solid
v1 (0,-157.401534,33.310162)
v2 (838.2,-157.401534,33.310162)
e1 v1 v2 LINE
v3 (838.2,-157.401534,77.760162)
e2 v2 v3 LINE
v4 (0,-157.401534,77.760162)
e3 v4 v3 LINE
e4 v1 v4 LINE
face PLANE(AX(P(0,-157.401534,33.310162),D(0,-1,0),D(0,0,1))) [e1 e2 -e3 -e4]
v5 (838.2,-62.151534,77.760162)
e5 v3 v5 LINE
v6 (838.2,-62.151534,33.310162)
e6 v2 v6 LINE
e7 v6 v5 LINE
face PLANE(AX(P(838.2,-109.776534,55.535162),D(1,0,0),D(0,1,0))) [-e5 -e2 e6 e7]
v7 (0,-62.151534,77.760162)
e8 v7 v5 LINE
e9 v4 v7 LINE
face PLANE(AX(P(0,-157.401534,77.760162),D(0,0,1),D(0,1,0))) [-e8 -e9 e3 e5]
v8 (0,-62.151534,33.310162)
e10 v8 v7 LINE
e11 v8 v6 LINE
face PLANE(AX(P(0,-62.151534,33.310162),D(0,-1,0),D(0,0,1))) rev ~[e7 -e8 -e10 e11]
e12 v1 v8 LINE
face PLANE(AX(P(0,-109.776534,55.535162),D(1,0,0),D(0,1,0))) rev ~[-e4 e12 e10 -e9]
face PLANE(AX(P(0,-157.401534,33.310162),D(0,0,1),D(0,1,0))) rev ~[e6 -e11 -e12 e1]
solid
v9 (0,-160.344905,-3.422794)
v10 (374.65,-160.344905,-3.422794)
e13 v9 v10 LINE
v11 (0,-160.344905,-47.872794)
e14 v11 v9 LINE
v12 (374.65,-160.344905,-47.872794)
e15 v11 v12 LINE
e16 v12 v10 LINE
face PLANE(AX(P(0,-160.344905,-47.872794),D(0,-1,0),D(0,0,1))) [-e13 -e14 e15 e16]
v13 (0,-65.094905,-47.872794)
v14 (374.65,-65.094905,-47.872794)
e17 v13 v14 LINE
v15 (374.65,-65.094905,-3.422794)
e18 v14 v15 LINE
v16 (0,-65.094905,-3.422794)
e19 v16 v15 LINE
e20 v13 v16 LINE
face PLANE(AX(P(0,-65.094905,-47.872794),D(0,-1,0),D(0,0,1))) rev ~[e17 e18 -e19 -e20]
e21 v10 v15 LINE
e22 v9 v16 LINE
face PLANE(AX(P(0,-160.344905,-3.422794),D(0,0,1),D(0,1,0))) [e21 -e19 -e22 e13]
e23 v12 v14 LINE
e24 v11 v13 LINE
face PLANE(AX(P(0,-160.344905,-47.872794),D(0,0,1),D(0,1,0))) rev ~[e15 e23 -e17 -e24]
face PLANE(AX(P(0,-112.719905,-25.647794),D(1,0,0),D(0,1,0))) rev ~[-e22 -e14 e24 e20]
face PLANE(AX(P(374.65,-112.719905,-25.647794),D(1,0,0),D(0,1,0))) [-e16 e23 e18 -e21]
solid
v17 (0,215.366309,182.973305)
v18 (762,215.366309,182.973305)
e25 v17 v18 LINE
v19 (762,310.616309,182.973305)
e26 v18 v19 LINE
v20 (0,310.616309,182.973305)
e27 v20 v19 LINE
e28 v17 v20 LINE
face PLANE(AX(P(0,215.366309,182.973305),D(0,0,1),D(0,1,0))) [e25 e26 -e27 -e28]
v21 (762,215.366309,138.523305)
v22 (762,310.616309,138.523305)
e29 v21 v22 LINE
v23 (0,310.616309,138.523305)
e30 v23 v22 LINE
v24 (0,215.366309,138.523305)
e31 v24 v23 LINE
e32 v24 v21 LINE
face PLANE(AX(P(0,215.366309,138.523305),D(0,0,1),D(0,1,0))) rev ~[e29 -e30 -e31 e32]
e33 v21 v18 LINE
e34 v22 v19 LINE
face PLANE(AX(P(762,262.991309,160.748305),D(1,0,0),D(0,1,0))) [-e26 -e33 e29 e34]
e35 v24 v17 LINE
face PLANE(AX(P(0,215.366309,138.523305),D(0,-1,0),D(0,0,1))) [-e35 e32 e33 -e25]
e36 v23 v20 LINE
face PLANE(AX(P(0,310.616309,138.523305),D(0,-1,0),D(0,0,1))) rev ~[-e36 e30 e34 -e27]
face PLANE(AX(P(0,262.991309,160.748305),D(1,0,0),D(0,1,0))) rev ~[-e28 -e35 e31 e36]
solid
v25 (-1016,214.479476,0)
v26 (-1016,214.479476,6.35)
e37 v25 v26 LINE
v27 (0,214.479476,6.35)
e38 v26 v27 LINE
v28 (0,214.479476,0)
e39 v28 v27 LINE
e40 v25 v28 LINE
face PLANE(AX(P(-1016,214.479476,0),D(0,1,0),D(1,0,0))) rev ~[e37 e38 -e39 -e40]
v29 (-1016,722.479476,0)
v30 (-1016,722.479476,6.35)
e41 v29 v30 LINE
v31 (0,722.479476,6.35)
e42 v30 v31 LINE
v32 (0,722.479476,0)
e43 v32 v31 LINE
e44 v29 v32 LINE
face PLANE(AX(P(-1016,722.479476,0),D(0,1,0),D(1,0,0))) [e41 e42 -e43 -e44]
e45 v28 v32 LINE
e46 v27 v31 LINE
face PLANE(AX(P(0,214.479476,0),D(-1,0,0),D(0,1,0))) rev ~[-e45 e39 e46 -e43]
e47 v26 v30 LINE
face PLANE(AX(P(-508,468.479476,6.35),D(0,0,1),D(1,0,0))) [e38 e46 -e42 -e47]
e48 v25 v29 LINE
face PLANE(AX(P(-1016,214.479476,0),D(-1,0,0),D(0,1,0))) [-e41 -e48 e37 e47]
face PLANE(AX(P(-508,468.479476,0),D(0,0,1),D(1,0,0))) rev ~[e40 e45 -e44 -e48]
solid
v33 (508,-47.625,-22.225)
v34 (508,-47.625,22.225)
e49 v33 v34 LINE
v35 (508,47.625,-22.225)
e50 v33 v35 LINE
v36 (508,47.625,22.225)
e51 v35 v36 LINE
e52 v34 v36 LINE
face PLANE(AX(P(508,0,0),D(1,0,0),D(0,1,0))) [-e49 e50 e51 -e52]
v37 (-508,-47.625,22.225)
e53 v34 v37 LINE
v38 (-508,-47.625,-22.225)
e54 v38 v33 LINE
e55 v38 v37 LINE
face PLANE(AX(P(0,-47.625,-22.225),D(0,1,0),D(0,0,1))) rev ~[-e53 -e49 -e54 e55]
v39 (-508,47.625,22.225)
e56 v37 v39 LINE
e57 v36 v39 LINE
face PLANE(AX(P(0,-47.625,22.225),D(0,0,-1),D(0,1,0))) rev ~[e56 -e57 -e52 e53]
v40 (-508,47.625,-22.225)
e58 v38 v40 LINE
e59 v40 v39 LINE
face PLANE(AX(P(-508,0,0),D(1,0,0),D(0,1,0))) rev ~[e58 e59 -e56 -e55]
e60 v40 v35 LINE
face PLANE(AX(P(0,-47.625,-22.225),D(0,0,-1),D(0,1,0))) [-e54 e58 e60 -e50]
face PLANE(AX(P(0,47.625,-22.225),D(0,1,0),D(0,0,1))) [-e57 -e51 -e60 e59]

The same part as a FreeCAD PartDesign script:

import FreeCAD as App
import Part
import Sketcher
from FreeCAD import Vector
Q = App.Units.Quantity


def add_polygon(sketch, points):
    """Adds a closed chain of lines whose ends are joined by coincident constraints."""
    first, n = sketch.GeometryCount, len(points)
    for a, b in zip(points, points[1:] + points[:1]):
        sketch.addGeometry(Part.LineSegment(App.Vector(*a, 0), App.Vector(*b, 0)), False)
    for i in range(n):
        sketch.addConstraint(Sketcher.Constraint("Coincident", first + i, 2, first + (i + 1) % n, 1))

doc = App.newDocument("Part")
body = doc.addObject("PartDesign::Body", "Body")

# Sketch on YZ plane
sketch1 = body.newObject("Sketcher::SketchObject", "Sketch")
sketch1.AttachmentSupport = (doc.getObject("YZ_Plane"), [""])
sketch1.MapMode = "FlatFace"
add_polygon(sketch1, [(-48, 22), (-48, -22), (48, -22), (48, 22)])  # lines 0-3
sketch1.addConstraint([
    Sketcher.Constraint("Vertical", 0),
    Sketcher.Constraint("Horizontal", 1),
    Sketcher.Constraint("Vertical", 2),
    Sketcher.Constraint("Horizontal", 3),
    Sketcher.Constraint("Symmetric", 0, 2, 2, 2, -1, 1),
    Sketcher.Constraint("DistanceX", 1, 1, 1, 2, Q("3.75 in")),
    Sketcher.Constraint("DistanceY", 0, 2, 0, 1, Q("1.75 in")),
])
pad1 = body.newObject("PartDesign::Pad", "Pad")
pad1.Profile = sketch1
pad1.Length = Q("40 in")
pad1.Midplane = True
body2 = doc.addObject("PartDesign::Body", "Body001")

# Sketch on YZ plane
sketch2 = body2.newObject("Sketcher::SketchObject", "Sketch001")
sketch2.AttachmentSupport = (doc.getObject("YZ_Plane001"), [""])
sketch2.MapMode = "FlatFace"
add_polygon(sketch2, [(215, 183), (215, 139), (311, 139), (311, 183)])  # lines 0-3
sketch2.addConstraint([
    Sketcher.Constraint("Vertical", 0),
    Sketcher.Constraint("Horizontal", 1),
    Sketcher.Constraint("Vertical", 2),
    Sketcher.Constraint("Horizontal", 3),
    Sketcher.Constraint("DistanceX", 1, 1, 1, 2, Q("3.75 in")),
    Sketcher.Constraint("DistanceY", 0, 2, 0, 1, Q("1.75 in")),
    Sketcher.Constraint("DistanceX", -1, 1, 0, 2, 215.366309),
    Sketcher.Constraint("DistanceY", -1, 1, 0, 2, 138.523305),
])
pad2 = body2.newObject("PartDesign::Pad", "Pad001")
pad2.Profile = sketch2
pad2.Length = Q("30 in")
body3 = doc.addObject("PartDesign::Body", "Body002")

# Sketch on YZ plane
sketch3 = body3.newObject("Sketcher::SketchObject", "Sketch002")
sketch3.AttachmentSupport = (doc.getObject("YZ_Plane002"), [""])
sketch3.MapMode = "FlatFace"
add_polygon(sketch3, [(-157, 78), (-157, 33), (-62, 33), (-62, 78)])  # lines 0-3
sketch3.addConstraint([
    Sketcher.Constraint("Vertical", 0),
    Sketcher.Constraint("Horizontal", 1),
    Sketcher.Constraint("Vertical", 2),
    Sketcher.Constraint("Horizontal", 3),
    Sketcher.Constraint("DistanceX", 1, 1, 1, 2, Q("3.75 in")),
    Sketcher.Constraint("DistanceY", 0, 2, 0, 1, Q("1.75 in")),
    Sketcher.Constraint("DistanceY", -1, 1, 0, 2, 33.310162),
    Sketcher.Constraint("DistanceX", 0, 2, -1, 1, 157.401534),
])
pad3 = body3.newObject("PartDesign::Pad", "Pad002")
pad3.Profile = sketch3
pad3.Length = Q("33 in")
body4 = doc.addObject("PartDesign::Body", "Body003")

# Sketch on YZ plane
sketch4 = body4.newObject("Sketcher::SketchObject", "Sketch003")
sketch4.AttachmentSupport = (doc.getObject("YZ_Plane003"), [""])
sketch4.MapMode = "FlatFace"
add_polygon(sketch4, [(-160, -3), (-160, -48), (-65, -48), (-65, -3)])  # lines 0-3
sketch4.addConstraint([
    Sketcher.Constraint("Vertical", 0),
    Sketcher.Constraint("Horizontal", 1),
    Sketcher.Constraint("Vertical", 2),
    Sketcher.Constraint("Horizontal", 3),
    Sketcher.Constraint("DistanceX", 1, 1, 1, 2, Q("3.75 in")),
    Sketcher.Constraint("DistanceY", 0, 2, 0, 1, Q("1.75 in")),
    Sketcher.Constraint("DistanceX", 0, 2, -1, 1, 160.344905),
    Sketcher.Constraint("DistanceY", 0, 2, -1, 1, 47.872794),
])
pad4 = body4.newObject("PartDesign::Pad", "Pad003")
pad4.Profile = sketch4
pad4.Length = Q("14.75 in")
body5 = doc.addObject("PartDesign::Body", "Body004")

# Sketch on XY plane
sketch5 = body5.newObject("Sketcher::SketchObject", "Sketch004")
sketch5.AttachmentSupport = (doc.getObject("XY_Plane004"), [""])
sketch5.MapMode = "FlatFace"
add_polygon(sketch5, [(-1016, 722), (-1016, 214), (0, 214), (0, 722)])  # lines 0-3
sketch5.addConstraint([
    Sketcher.Constraint("Vertical", 0),
    Sketcher.Constraint("Horizontal", 1),
    Sketcher.Constraint("Vertical", 2),
    Sketcher.Constraint("Horizontal", 3),
    Sketcher.Constraint("PointOnObject", 1, 2, -2),
    Sketcher.Constraint("DistanceX", 1, 1, 1, 2, Q("40 in")),
    Sketcher.Constraint("DistanceY", 0, 2, 0, 1, Q("20 in")),
    Sketcher.Constraint("DistanceY", -1, 1, 0, 2, 214.479476),
])
pad5 = body5.newObject("PartDesign::Pad", "Pad004")
pad5.Profile = sketch5
pad5.Length = Q("0.25 in")

doc.recompute()
